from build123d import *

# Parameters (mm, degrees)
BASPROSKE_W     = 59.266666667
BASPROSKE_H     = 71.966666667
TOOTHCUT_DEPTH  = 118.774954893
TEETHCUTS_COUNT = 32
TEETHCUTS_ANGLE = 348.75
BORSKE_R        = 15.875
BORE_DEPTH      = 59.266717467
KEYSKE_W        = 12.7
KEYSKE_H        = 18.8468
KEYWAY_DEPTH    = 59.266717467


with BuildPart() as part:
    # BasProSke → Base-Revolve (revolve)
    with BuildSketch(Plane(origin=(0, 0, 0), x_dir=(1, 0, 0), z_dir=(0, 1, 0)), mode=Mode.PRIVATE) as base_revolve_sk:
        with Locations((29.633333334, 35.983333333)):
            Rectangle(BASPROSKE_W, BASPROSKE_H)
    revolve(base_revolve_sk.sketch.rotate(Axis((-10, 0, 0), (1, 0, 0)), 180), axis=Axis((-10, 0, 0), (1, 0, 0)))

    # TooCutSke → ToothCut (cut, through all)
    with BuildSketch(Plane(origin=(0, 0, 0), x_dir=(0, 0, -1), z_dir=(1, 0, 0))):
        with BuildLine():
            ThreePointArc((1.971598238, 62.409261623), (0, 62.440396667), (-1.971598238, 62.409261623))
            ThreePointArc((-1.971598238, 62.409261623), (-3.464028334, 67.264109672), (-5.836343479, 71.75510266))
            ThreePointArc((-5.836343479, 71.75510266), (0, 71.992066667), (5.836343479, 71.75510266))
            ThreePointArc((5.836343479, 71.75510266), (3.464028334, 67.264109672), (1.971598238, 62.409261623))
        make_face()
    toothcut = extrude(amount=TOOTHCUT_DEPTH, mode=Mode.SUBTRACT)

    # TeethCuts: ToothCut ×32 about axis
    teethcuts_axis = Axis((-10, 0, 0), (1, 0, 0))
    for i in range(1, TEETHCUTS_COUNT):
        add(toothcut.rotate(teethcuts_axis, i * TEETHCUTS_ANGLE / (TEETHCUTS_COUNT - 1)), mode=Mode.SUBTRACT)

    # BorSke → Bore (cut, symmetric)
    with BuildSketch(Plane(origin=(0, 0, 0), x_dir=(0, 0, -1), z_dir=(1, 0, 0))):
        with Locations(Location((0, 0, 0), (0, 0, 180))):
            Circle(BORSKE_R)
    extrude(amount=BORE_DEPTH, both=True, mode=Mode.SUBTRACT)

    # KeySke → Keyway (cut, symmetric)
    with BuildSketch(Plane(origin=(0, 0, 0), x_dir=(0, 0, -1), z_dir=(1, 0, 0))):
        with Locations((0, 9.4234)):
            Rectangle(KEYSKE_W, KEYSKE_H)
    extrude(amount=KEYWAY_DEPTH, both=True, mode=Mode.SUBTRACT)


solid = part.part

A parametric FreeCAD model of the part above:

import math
import FreeCAD as App
import Part
import Sketcher
Q = App.Units.Quantity


def add_polygon(sketch, points):
    """Adds a closed chain of lines whose ends are joined by coincident constraints."""
    first, n = sketch.GeometryCount, len(points)
    for a, b in zip(points, points[1:] + points[:1]):
        sketch.addGeometry(Part.LineSegment(App.Vector(*a, 0), App.Vector(*b, 0)), False)
    for i in range(n):
        sketch.addConstraint(Sketcher.Constraint("Coincident", first + i, 2, first + (i + 1) % n, 1))

doc = App.newDocument("Part")
params = doc.addObject("Spreadsheet::Sheet", "Params")
for row, (alias, value) in enumerate([
    ("revolution_angle", "360 deg"),
    ("sketch3_diameter", "1.25 in"),
    ("pocket2_length", "118.533435 mm"),
    ("sketch4_height", "0.5 in"),
    ("sketch4_width", "0.742 in"),
    ("pocket3_length", "118.533435 mm"),
], start=1):
    params.set(f"A{row}", alias)
    params.set(f"B{row}", "=" + value)
    params.setAlias(f"B{row}", alias)

body = doc.addObject("PartDesign::Body", "Body")

sketch1 = body.newObject("Sketcher::SketchObject", "Sketch")
sketch1.AttachmentSupport = (doc.getObject("XZ_Plane"), [""])
sketch1.MapMode = "FlatFace"
add_polygon(sketch1, [(0, -72), (0, 0), (59, 0), (59, -72)])
sketch1.addConstraint(Sketcher.Constraint("Vertical", 0))
sketch1.addConstraint(Sketcher.Constraint("Horizontal", 1))
sketch1.addConstraint(Sketcher.Constraint("Vertical", 2))
sketch1.addConstraint(Sketcher.Constraint("Horizontal", 3))
sketch1.addConstraint(Sketcher.Constraint("Coincident", 0, 2, -1, 1))
sketch1.addConstraint(Sketcher.Constraint("DistanceX", 1, 1, 1, 2, Q("59.266667 mm")))
sketch1.addConstraint(Sketcher.Constraint("DistanceY", 0, 1, 0, 2, Q("71.966667 mm")))
revolution = body.newObject("PartDesign::Revolution", "Revolution")
revolution.Profile = sketch1
revolution.ReferenceAxis = (sketch1, ["H_Axis"])
revolution.setExpression("Angle", "Params.revolution_angle")

sketch2 = body.newObject("Sketcher::SketchObject", "Sketch001")
sketch2.AttachmentSupport = (doc.getObject("YZ_Plane"), [""])
sketch2.MapMode = "FlatFace"
sketch2.addGeometry(Part.ArcOfCircle(Part.Circle(App.Vector(0, 0, 0), App.Vector(0, 0, 1), 62.4), math.radians(-1.81), math.radians(1.81)), False)
sketch2.addGeometry(Part.ArcOfCircle(Part.Circle(App.Vector(56.9, -28.5, 0), App.Vector(0, 0, 1), 27.1), math.radians(57), math.radians(78)), False)
sketch2.addGeometry(Part.ArcOfCircle(Part.Circle(App.Vector(0, 0, 0), App.Vector(0, 0, 1), 72), math.radians(-4.65), math.radians(4.65)), False)
sketch2.addGeometry(Part.ArcOfCircle(Part.Circle(App.Vector(56.9, 28.5, 0), App.Vector(0, 0, 1), 27.1), math.radians(-78), math.radians(-57)), False)
sketch2.addConstraint(Sketcher.Constraint("Coincident", 0, 1, 1, 2))
sketch2.addConstraint(Sketcher.Constraint("Coincident", 1, 1, 2, 1))
sketch2.addConstraint(Sketcher.Constraint("Coincident", 2, 2, 3, 2))
sketch2.addConstraint(Sketcher.Constraint("Coincident", 3, 1, 0, 2))
sketch2.addConstraint(Sketcher.Constraint("Coincident", 0, 3, -1, 1))
sketch2.addConstraint(Sketcher.Constraint("Coincident", 2, 3, -1, 1))
sketch2.addConstraint(Sketcher.Constraint("Equal", 1, 3))
sketch2.addConstraint(Sketcher.Constraint("Symmetric", 1, 3, 3, 3, -1))
sketch2.addConstraint(Sketcher.Constraint("Radius", 0, Q("62.440397 mm")))
sketch2.addConstraint(Sketcher.Constraint("Radius", 1, Q("27.093333 mm")))
sketch2.addConstraint(Sketcher.Constraint("Radius", 2, Q("71.992067 mm")))
sketch2.addConstraint(Sketcher.Constraint("DistanceY", 0, 1, -1, 1, Q("1.971598 mm")))
sketch2.addConstraint(Sketcher.Constraint("DistanceY", 1, 3, -1, 1, Q("28.501089 mm")))
pocket1 = body.newObject("PartDesign::Pocket", "Pocket")
pocket1.Profile = sketch2
pocket1.Type = "ThroughAll"
pocket1.Reversed = True
doc.recompute()

polarpattern = body.newObject("PartDesign::PolarPattern", "PolarPattern")
polarpattern.Originals = [pocket1]
polarpattern.Axis = (doc.getObject("X_Axis"), [""])
polarpattern.Angle = 360
polarpattern.Occurrences = 32
body.Tip = polarpattern

sketch3 = body.newObject("Sketcher::SketchObject", "Sketch002")
sketch3.AttachmentSupport = (doc.getObject("YZ_Plane"), [""])
sketch3.MapMode = "FlatFace"
sketch3.addGeometry(Part.Circle(App.Vector(0, 0, 0), App.Vector(0, 0, 1), 16), False)
sketch3.addConstraint(Sketcher.Constraint("Coincident", 0, 3, -1, 1))
sketch3.addConstraint(Sketcher.Constraint("Diameter", 0, Q("1.25 in")))
sketch3.setExpression("Constraints[1]", "Params.sketch3_diameter")
pocket2 = body.newObject("PartDesign::Pocket", "Pocket001")
pocket2.Profile = sketch3
pocket2.setExpression("Length", "Params.pocket2_length")
pocket2.Midplane = True

sketch4 = body.newObject("Sketcher::SketchObject", "Sketch003")
sketch4.AttachmentSupport = (doc.getObject("YZ_Plane"), [""])
sketch4.MapMode = "FlatFace"
add_polygon(sketch4, [(19, 6), (0, 6), (0, -6), (19, -6)])
sketch4.addConstraint(Sketcher.Constraint("Horizontal", 0))
sketch4.addConstraint(Sketcher.Constraint("Vertical", 1))
sketch4.addConstraint(Sketcher.Constraint("Horizontal", 2))
sketch4.addConstraint(Sketcher.Constraint("Vertical", 3))
sketch4.addConstraint(Sketcher.Constraint("Symmetric", 0, 2, 1, 2, -1, 1))
sketch4.addConstraint(Sketcher.Constraint("DistanceY", 1, 2, 1, 1, Q("0.5 in")))
sketch4.addConstraint(Sketcher.Constraint("DistanceX", 0, 2, 0, 1, Q("0.742 in")))
sketch4.setExpression("Constraints[9]", "Params.sketch4_height")
sketch4.setExpression("Constraints[10]", "Params.sketch4_width")
pocket3 = body.newObject("PartDesign::Pocket", "Pocket002")
pocket3.Profile = sketch4
pocket3.setExpression("Length", "Params.pocket3_length")
pocket3.Midplane = True

doc.recompute()
